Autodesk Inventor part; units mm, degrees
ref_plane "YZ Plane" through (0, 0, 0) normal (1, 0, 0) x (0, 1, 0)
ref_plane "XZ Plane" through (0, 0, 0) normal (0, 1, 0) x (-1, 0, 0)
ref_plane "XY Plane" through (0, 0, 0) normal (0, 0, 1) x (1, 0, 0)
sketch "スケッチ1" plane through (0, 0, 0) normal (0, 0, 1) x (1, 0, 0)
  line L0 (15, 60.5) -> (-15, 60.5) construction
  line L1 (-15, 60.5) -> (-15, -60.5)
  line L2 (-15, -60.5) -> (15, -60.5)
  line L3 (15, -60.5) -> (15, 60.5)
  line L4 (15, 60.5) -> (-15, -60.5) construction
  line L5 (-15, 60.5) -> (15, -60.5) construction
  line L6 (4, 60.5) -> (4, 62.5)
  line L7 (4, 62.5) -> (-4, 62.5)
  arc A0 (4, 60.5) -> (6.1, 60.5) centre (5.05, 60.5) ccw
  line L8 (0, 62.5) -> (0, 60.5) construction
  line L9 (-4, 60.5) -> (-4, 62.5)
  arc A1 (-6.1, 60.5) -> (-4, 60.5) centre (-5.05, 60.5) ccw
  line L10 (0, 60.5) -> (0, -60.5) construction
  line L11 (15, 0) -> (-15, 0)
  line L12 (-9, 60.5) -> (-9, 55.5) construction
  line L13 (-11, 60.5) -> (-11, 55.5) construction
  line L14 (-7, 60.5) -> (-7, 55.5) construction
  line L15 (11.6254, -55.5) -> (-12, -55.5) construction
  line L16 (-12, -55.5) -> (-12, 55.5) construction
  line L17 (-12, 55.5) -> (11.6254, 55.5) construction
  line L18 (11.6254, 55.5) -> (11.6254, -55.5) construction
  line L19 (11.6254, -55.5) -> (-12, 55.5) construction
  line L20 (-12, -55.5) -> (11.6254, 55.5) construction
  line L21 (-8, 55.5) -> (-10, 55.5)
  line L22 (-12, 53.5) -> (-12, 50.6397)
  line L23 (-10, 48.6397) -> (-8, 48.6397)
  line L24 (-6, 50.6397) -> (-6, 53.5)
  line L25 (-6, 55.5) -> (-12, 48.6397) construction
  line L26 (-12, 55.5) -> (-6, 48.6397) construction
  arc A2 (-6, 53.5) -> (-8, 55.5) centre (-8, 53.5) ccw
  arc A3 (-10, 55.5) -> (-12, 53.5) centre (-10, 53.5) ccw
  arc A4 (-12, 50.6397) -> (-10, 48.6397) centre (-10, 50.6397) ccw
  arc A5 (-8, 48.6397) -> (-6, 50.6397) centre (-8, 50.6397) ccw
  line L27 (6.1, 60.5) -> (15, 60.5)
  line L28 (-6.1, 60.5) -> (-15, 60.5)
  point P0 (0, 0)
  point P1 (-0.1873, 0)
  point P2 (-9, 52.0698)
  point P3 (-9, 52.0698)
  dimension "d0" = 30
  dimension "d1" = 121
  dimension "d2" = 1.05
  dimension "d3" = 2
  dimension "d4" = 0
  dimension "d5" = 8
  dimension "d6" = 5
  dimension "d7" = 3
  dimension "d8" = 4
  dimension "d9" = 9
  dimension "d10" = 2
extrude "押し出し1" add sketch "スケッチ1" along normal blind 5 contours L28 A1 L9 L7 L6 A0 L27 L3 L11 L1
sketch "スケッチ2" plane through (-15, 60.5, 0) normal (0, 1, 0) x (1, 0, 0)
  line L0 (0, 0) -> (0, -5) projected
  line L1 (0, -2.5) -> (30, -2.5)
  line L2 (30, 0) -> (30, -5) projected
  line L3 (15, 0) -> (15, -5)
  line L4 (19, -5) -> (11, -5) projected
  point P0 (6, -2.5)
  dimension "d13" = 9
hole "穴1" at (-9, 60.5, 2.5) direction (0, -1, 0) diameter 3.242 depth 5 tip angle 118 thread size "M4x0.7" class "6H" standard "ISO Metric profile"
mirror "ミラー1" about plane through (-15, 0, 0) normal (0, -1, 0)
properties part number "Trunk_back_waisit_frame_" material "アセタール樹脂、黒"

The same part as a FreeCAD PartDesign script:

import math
import FreeCAD as App
import Part
import Sketcher

V = App.Vector
Q = App.Units.Quantity

doc = App.newDocument("Part")
params = doc.addObject("Spreadsheet::Sheet", "Params")
for row, (alias, value) in enumerate([
    ("sketch1_radius", "2 mm"),
    ("sketch1_width", "30 mm"),
    ("sketch1_width2", "8 mm"),
    ("sketch1_width3", "2 mm"),
    ("sketch1_radius2", "1.05 mm"),
    ("pad1_length", "5 mm"),
    ("hole_diameter", "3.242 mm"),
    ("hole_depth", "5 mm"),
], start=1):
    params.set(f"A{row}", alias)
    params.set(f"B{row}", "=" + value)
    params.setAlias(f"B{row}", alias)

body = doc.addObject("PartDesign::Body", "Body")

# Sketch on XY plane
sketch1 = body.newObject("Sketcher::SketchObject", "Sketch")
sketch1.AttachmentSupport = (doc.getObject("XY_Plane"), [""])
sketch1.MapMode = "FlatFace"
sketch1.addGeometry([
    Part.LineSegment(V(-6.1, 60.5, 0), V(-15, 60.5, 0)),  # 0
    Part.LineSegment(V(-15, 60.5, 0), V(-15, 0, 0)),  # 1
    Part.LineSegment(V(-15, 0, 0), V(15, 0, 0)),  # 2
    Part.LineSegment(V(15, 0, 0), V(15, 60.5, 0)),  # 3
    Part.LineSegment(V(15, 60.5, 0), V(6.1, 60.5, 0)),  # 4
    Part.ArcOfCircle(Part.Circle(V(5, 60.5, 0), V(0, 0, 1), 1), math.radians(180), math.radians(360)),  # 5
    Part.LineSegment(V(4, 60.5, 0), V(4, 62.5, 0)),  # 6
    Part.LineSegment(V(4, 62.5, 0), V(-4, 62.5, 0)),  # 7
    Part.LineSegment(V(-4, 62.5, 0), V(-4, 60.5, 0)),  # 8
    Part.ArcOfCircle(Part.Circle(V(-5, 60.5, 0), V(0, 0, 1), 1), math.radians(180), math.radians(360)),  # 9
    Part.LineSegment(V(-10, 55.5, 0), V(-8, 55.5, 0)),  # 10
    Part.ArcOfCircle(Part.Circle(V(-8, 53.5, 0), V(0, 0, 1), 2), math.radians(0), math.radians(90)),  # 11
    Part.LineSegment(V(-6, 53.5, 0), V(-6, 50.6, 0)),  # 12
    Part.ArcOfCircle(Part.Circle(V(-8, 50.6, 0), V(0, 0, 1), 2), math.radians(-90), math.radians(0)),  # 13
    Part.LineSegment(V(-8, 48.6, 0), V(-10, 48.6, 0)),  # 14
    Part.ArcOfCircle(Part.Circle(V(-10, 50.6, 0), V(0, 0, 1), 2), math.radians(180), math.radians(270)),  # 15
    Part.LineSegment(V(-12, 50.6, 0), V(-12, 53.5, 0)),  # 16
    Part.ArcOfCircle(Part.Circle(V(-10, 53.5, 0), V(0, 0, 1), 2), math.radians(90), math.radians(180)),  # 17
], False)
sketch1.addConstraint([
    Sketcher.Constraint("Coincident", 0, 2, 1, 1),
    Sketcher.Constraint("Coincident", 1, 2, 2, 1),
    Sketcher.Constraint("Coincident", 2, 2, 3, 1),
    Sketcher.Constraint("Coincident", 3, 2, 4, 1),
    Sketcher.Constraint("Coincident", 4, 2, 5, 2),
    Sketcher.Constraint("Tangent", 5, 1, 6, 1),
    Sketcher.Constraint("Coincident", 6, 2, 7, 1),
    Sketcher.Constraint("Coincident", 7, 2, 8, 1),
    Sketcher.Constraint("Tangent", 8, 2, 9, 2),
    Sketcher.Constraint("Coincident", 9, 1, 0, 1),
    Sketcher.Constraint("Tangent", 10, 2, 11, 2),
    Sketcher.Constraint("Tangent", 11, 1, 12, 1),
    Sketcher.Constraint("Tangent", 12, 2, 13, 2),
    Sketcher.Constraint("Tangent", 13, 1, 14, 1),
    Sketcher.Constraint("Tangent", 14, 2, 15, 2),
    Sketcher.Constraint("Tangent", 15, 1, 16, 1),
    Sketcher.Constraint("Tangent", 16, 2, 17, 2),
    Sketcher.Constraint("Tangent", 17, 1, 10, 1),
    Sketcher.Constraint("Horizontal", 0),
    Sketcher.Constraint("Vertical", 1),
    Sketcher.Constraint("Horizontal", 2),
    Sketcher.Constraint("Vertical", 3),
    Sketcher.Constraint("Horizontal", 4),
    Sketcher.Constraint("Vertical", 6),
    Sketcher.Constraint("Horizontal", 7),
    Sketcher.Constraint("Vertical", 8),
    Sketcher.Constraint("Horizontal", 10),
    Sketcher.Constraint("Vertical", 12),
    Sketcher.Constraint("Horizontal", 14),
    Sketcher.Constraint("Vertical", 16),
    Sketcher.Constraint("Equal", 5, 9),
    Sketcher.Constraint("Equal", 11, 13),
    Sketcher.Constraint("Equal", 13, 15),
    Sketcher.Constraint("Equal", 15, 17),
    Sketcher.Constraint("Symmetric", 1, 2, 2, 2, -1, 1),
    Sketcher.Constraint("Symmetric", 5, 3, 9, 3, -2),
    Sketcher.Constraint("Horizontal", 9, 3, 0, 2),
    Sketcher.Constraint("Horizontal", 0, 2, 3, 2),
    Sketcher.Constraint("Equal", 14, 6),
    Sketcher.Constraint("Radius", 11, Q("2 mm")),
    Sketcher.Constraint("DistanceX", 2, 1, 2, 2, Q("30 mm")),
    Sketcher.Constraint("DistanceX", 7, 2, 7, 1, Q("8 mm")),
    Sketcher.Constraint("DistanceX", 10, 1, 10, 2, Q("2 mm")),
    Sketcher.Constraint("Radius", 5, Q("1.05 mm")),
    Sketcher.Constraint("DistanceX", 11, 3, -1, 1, Q("8 mm")),
    Sketcher.Constraint("DistanceY", 11, 3, 7, 2, Q("9 mm")),
    Sketcher.Constraint("DistanceY", 1, 2, 1, 1, Q("60.5 mm")),
    Sketcher.Constraint("DistanceY", 12, 2, 12, 1, Q("2.8603 mm")),
])
sketch1.setExpression("Constraints[39]", "Params.sketch1_radius")
sketch1.setExpression("Constraints[40]", "Params.sketch1_width")
sketch1.setExpression("Constraints[41]", "Params.sketch1_width2")
sketch1.setExpression("Constraints[42]", "Params.sketch1_width3")
sketch1.setExpression("Constraints[43]", "Params.sketch1_radius2")
pad1 = body.newObject("PartDesign::Pad", "Pad")
pad1.Profile = sketch1
pad1.setExpression("Length", "Params.pad1_length")

# Sketch on XZ plane
sketch2 = body.newObject("Sketcher::SketchObject", "Sketch001")
sketch2.AttachmentSupport = (doc.getObject("XZ_Plane"), [""])
sketch2.MapMode = "FlatFace"
sketch2.AttachmentOffset = App.Placement(V(0, 0, -60.5), App.Rotation())
sketch2.addGeometry(Part.Circle(V(-9, 2.5, 0), V(0, 0, 1), 1.6), False)
sketch2.addConstraint([
    Sketcher.Constraint("Diameter", 0, Q("3.242 mm")),
    Sketcher.Constraint("DistanceX", 0, 3, -1, 1, Q("9 mm")),
    Sketcher.Constraint("DistanceY", -1, 1, 0, 3, Q("2.5 mm")),
])
doc.recompute()
hole = body.newObject("PartDesign::Hole", "Hole")
hole.Profile = sketch2
hole.ThreadType = "None"
hole.setExpression("Diameter", "Params.hole_diameter")
hole.DepthType = "Dimension"
hole.setExpression("Depth", "Params.hole_depth")
hole.DrillPoint = "Angled"
hole.DrillPointAngle = 118
hole.Reversed = True
doc.recompute()

mirrored = body.newObject("PartDesign::Mirrored", "Mirrored")
mirrored.TransformMode = "Transform body"
mirrored.MirrorPlane = (doc.getObject("XZ_Plane"), [""])
body.Tip = mirrored

doc.recompute()
